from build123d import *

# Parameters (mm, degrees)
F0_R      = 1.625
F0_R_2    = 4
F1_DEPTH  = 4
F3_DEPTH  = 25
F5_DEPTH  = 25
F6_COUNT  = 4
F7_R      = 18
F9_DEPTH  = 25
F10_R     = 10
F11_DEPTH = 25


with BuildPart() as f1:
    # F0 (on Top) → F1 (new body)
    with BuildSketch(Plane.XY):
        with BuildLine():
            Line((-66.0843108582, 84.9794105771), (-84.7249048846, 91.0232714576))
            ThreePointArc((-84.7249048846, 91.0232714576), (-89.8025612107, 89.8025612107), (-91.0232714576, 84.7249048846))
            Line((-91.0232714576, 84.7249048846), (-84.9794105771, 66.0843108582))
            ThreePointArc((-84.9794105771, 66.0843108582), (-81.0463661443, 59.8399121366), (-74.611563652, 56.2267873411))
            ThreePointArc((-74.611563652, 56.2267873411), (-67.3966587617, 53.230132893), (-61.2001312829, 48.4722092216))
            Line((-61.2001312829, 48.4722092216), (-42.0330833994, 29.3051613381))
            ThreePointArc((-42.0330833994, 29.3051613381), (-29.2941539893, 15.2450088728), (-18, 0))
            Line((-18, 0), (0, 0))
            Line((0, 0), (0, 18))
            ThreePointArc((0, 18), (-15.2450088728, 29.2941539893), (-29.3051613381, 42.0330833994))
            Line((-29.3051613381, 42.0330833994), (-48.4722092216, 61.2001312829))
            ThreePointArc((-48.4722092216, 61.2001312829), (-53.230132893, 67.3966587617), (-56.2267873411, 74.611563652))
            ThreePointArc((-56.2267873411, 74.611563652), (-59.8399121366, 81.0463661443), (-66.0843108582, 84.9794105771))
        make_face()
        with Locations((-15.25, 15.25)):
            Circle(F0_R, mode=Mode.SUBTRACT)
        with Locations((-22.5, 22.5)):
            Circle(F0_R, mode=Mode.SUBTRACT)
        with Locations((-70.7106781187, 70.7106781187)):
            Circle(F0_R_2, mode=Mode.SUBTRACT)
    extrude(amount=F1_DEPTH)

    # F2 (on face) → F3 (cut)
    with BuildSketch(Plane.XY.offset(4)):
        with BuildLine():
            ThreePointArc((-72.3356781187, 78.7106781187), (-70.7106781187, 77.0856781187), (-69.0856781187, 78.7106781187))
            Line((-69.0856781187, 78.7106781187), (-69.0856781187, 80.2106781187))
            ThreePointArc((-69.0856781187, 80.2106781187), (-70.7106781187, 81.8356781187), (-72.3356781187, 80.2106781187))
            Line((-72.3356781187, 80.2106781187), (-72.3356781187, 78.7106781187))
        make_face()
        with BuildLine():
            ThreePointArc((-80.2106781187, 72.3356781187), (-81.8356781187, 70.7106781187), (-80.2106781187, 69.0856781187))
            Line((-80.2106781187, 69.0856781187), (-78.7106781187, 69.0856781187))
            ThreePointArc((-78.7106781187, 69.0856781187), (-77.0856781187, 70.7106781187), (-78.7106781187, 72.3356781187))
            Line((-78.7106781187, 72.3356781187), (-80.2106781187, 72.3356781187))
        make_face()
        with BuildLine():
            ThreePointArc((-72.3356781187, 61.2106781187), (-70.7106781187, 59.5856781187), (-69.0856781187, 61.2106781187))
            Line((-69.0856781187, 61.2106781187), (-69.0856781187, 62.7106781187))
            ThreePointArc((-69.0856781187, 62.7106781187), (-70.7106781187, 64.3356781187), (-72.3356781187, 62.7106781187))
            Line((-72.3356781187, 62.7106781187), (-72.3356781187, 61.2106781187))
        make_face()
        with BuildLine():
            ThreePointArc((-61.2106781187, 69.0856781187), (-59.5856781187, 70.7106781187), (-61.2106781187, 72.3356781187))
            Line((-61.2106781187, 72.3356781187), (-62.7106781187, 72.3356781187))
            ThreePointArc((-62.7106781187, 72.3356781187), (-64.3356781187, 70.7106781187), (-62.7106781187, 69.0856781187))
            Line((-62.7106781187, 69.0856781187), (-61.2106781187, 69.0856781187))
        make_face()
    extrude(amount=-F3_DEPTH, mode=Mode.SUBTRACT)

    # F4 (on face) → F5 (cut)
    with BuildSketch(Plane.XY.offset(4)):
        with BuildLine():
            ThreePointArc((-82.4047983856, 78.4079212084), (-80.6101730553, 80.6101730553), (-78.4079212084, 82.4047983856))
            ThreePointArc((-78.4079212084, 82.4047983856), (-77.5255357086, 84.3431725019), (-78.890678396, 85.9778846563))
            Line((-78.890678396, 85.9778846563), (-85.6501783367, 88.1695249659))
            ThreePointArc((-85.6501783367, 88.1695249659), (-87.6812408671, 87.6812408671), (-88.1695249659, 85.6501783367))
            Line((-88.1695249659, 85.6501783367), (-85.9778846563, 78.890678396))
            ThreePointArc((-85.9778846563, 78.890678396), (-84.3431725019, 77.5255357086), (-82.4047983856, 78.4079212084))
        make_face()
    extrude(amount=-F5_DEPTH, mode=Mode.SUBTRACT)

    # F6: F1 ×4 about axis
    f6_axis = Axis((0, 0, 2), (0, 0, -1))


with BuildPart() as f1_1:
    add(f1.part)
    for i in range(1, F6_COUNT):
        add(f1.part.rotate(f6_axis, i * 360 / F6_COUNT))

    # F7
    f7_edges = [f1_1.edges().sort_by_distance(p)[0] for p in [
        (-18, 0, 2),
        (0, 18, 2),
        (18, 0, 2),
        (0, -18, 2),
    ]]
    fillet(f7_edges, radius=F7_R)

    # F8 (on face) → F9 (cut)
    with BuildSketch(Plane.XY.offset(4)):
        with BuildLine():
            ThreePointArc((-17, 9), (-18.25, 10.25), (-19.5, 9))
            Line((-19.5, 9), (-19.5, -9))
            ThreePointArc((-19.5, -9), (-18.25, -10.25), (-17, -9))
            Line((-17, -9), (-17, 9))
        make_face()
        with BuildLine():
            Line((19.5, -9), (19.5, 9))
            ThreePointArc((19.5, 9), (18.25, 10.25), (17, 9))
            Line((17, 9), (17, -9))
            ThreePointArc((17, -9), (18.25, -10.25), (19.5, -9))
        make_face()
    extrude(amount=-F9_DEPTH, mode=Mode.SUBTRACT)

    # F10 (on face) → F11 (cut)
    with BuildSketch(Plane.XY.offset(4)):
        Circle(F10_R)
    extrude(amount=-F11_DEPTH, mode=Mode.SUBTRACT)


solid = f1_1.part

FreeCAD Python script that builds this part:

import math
import FreeCAD as App
import Part
import Sketcher
Q = App.Units.Quantity


def edges_at(feature, points):
    """Names of the edges that pass closest to the given points."""
    edges = feature.Shape.Edges
    near = lambda p: min(range(len(edges)), key=lambda i: edges[i].distToShape(Part.Vertex(*p))[0])
    return sorted({f"Edge{near(p) + 1}" for p in points})

doc = App.newDocument("Part")
body = doc.addObject("PartDesign::Body", "Body")

# Sketch on XY plane
sketch1 = body.newObject("Sketcher::SketchObject", "Sketch")
sketch1.AttachmentSupport = (doc.getObject("XY_Plane"), [""])
sketch1.MapMode = "FlatFace"
sketch1.addGeometry(Part.LineSegment(App.Vector(-66.1, 85, 0), App.Vector(-84.7, 91, 0)), False)
sketch1.addGeometry(Part.ArcOfCircle(Part.Circle(App.Vector(-86.3, 86.3, 0), App.Vector(0, 0, 1), 5), math.radians(72), math.radians(198)), False)
sketch1.addGeometry(Part.LineSegment(App.Vector(-91, 84.7, 0), App.Vector(-85, 66.1, 0)), False)
sketch1.addGeometry(Part.ArcOfCircle(Part.Circle(App.Vector(-70.7, 70.7, 0), App.Vector(0, 0, 1), 15), math.radians(-162), math.radians(-105)), False)
sketch1.addGeometry(Part.ArcOfCircle(Part.Circle(App.Vector(-82.4, 27.3, 0), App.Vector(0, 0, 1), 30), math.radians(45), math.radians(75)), False)
sketch1.addGeometry(Part.LineSegment(App.Vector(-61.2, 48.5, 0), App.Vector(-42, 29.3, 0)), False)
sketch1.addGeometry(Part.ArcOfCircle(Part.Circle(App.Vector(-178.3, -106.9, 0), App.Vector(0, 0, 1), 192.7), math.radians(33.71), math.radians(45)), False)
sketch1.addGeometry(Part.LineSegment(App.Vector(-18, 0, 0), App.Vector(0, 0, 0)), False)
sketch1.addGeometry(Part.LineSegment(App.Vector(0, 0, 0), App.Vector(0, 18, 0)), False)
sketch1.addGeometry(Part.ArcOfCircle(Part.Circle(App.Vector(106.9, 178.3, 0), App.Vector(0, 0, 1), 192.7), math.radians(-135), math.radians(-123.71)), False)
sketch1.addGeometry(Part.LineSegment(App.Vector(-29.3, 42, 0), App.Vector(-48.5, 61.2, 0)), False)
sketch1.addGeometry(Part.ArcOfCircle(Part.Circle(App.Vector(-27.3, 82.4, 0), App.Vector(0, 0, 1), 30), math.radians(-165), math.radians(-135)), False)
sketch1.addGeometry(Part.ArcOfCircle(Part.Circle(App.Vector(-70.7, 70.7, 0), App.Vector(0, 0, 1), 15), math.radians(15), math.radians(72)), False)
sketch1.addGeometry(Part.Circle(App.Vector(-15.2, 15.2, 0), App.Vector(0, 0, 1), 1.6), False)
sketch1.addGeometry(Part.Circle(App.Vector(-22.5, 22.5, 0), App.Vector(0, 0, 1), 1.6), False)
sketch1.addGeometry(Part.Circle(App.Vector(-70.7, 70.7, 0), App.Vector(0, 0, 1), 4), False)
sketch1.addConstraint(Sketcher.Constraint("Tangent", 0, 2, 1, 1))
sketch1.addConstraint(Sketcher.Constraint("Tangent", 1, 2, 2, 1))
sketch1.addConstraint(Sketcher.Constraint("Tangent", 2, 2, 3, 1))
sketch1.addConstraint(Sketcher.Constraint("Tangent", 3, 2, 4, 2))
sketch1.addConstraint(Sketcher.Constraint("Tangent", 4, 1, 5, 1))
sketch1.addConstraint(Sketcher.Constraint("Tangent", 5, 2, 6, 2))
sketch1.addConstraint(Sketcher.Constraint("Coincident", 6, 1, 7, 1))
sketch1.addConstraint(Sketcher.Constraint("Coincident", 7, 2, 8, 1))
sketch1.addConstraint(Sketcher.Constraint("Coincident", 8, 2, 9, 2))
sketch1.addConstraint(Sketcher.Constraint("Tangent", 9, 1, 10, 1))
sketch1.addConstraint(Sketcher.Constraint("Tangent", 10, 2, 11, 2))
sketch1.addConstraint(Sketcher.Constraint("Tangent", 11, 1, 12, 1))
sketch1.addConstraint(Sketcher.Constraint("Tangent", 12, 2, 0, 1))
sketch1.addConstraint(Sketcher.Constraint("Horizontal", 7))
sketch1.addConstraint(Sketcher.Constraint("Vertical", 8))
sketch1.addConstraint(Sketcher.Constraint("Coincident", 7, 2, -1, 1))
sketch1.addConstraint(Sketcher.Constraint("Coincident", 12, 3, 3, 3))
sketch1.addConstraint(Sketcher.Constraint("Coincident", 15, 3, 3, 3))
sketch1.addConstraint(Sketcher.Constraint("Equal", 6, 9))
sketch1.addConstraint(Sketcher.Constraint("Equal", 4, 11))
sketch1.addConstraint(Sketcher.Constraint("Equal", 3, 12))
sketch1.addConstraint(Sketcher.Constraint("Equal", 13, 14))
sketch1.addConstraint(Sketcher.Constraint("Parallel", 5, 10))
sketch1.addConstraint(Sketcher.Constraint("Equal", 7, 8))
sketch1.addConstraint(Sketcher.Constraint("Equal", 5, 10))
sketch1.addConstraint(Sketcher.Constraint("Diameter", 15, 8.0))
sketch1.addConstraint(Sketcher.Constraint("Radius", 1, 5.0))
sketch1.addConstraint(Sketcher.Constraint("Radius", 3, 15.0))
sketch1.addConstraint(Sketcher.Constraint("Radius", 4, 30.0))
sketch1.addConstraint(Sketcher.Constraint("Diameter", 13, 3.25))
sketch1.addConstraint(Sketcher.Constraint("DistanceX", 7, 1, 7, 2, 18.0))
sketch1.addConstraint(Sketcher.Constraint("Angle", 5, Q("-45 deg")))
sketch1.addConstraint(Sketcher.Constraint("DistanceX", 14, 3, -1, 1, 22.5))
sketch1.addConstraint(Sketcher.Constraint("DistanceY", -1, 1, 14, 3, 22.5))
sketch1.addConstraint(Sketcher.Constraint("DistanceX", 13, 3, -1, 1, 15.25))
sketch1.addConstraint(Sketcher.Constraint("DistanceY", -1, 1, 13, 3, 15.25))
sketch1.addConstraint(Sketcher.Constraint("Radius", 6, 192.651772))
sketch1.addConstraint(Sketcher.Constraint("Distance", 5, 27.106299))
sketch1.addConstraint(Sketcher.Constraint("DistanceX", 0, 2, 11, 3, 57.465899))
sketch1.addConstraint(Sketcher.Constraint("DistanceY", 4, 1, 2, 2, 17.612102))
sketch1.addConstraint(Sketcher.Constraint("DistanceX", 3, 3, -1, 1, 70.710678))
sketch1.addConstraint(Sketcher.Constraint("DistanceY", -1, 1, 3, 3, 70.710678))
pad1 = body.newObject("PartDesign::Pad", "Pad")
pad1.Profile = sketch1
pad1.Length = 4

# Sketch on XY plane
sketch2 = body.newObject("Sketcher::SketchObject", "Sketch001")
sketch2.AttachmentSupport = (doc.getObject("XY_Plane"), [""])
sketch2.MapMode = "FlatFace"
sketch2.AttachmentOffset = App.Placement(App.Vector(0, 0, 4), App.Rotation())
sketch2.addGeometry(Part.ArcOfCircle(Part.Circle(App.Vector(-70.7, 78.7, 0), App.Vector(0, 0, 1), 1.6), math.radians(180), math.radians(360)), False)
sketch2.addGeometry(Part.LineSegment(App.Vector(-69.1, 78.7, 0), App.Vector(-69.1, 80.2, 0)), False)
sketch2.addGeometry(Part.ArcOfCircle(Part.Circle(App.Vector(-70.7, 80.2, 0), App.Vector(0, 0, 1), 1.6), math.radians(0), math.radians(180)), False)
sketch2.addGeometry(Part.LineSegment(App.Vector(-72.3, 80.2, 0), App.Vector(-72.3, 78.7, 0)), False)
sketch2.addGeometry(Part.ArcOfCircle(Part.Circle(App.Vector(-80.2, 70.7, 0), App.Vector(0, 0, 1), 1.6), math.radians(90), math.radians(270)), False)
sketch2.addGeometry(Part.LineSegment(App.Vector(-80.2, 69.1, 0), App.Vector(-78.7, 69.1, 0)), False)
sketch2.addGeometry(Part.ArcOfCircle(Part.Circle(App.Vector(-78.7, 70.7, 0), App.Vector(0, 0, 1), 1.6), math.radians(-90), math.radians(90)), False)
sketch2.addGeometry(Part.LineSegment(App.Vector(-78.7, 72.3, 0), App.Vector(-80.2, 72.3, 0)), False)
sketch2.addGeometry(Part.ArcOfCircle(Part.Circle(App.Vector(-70.7, 61.2, 0), App.Vector(0, 0, 1), 1.6), math.radians(180), math.radians(360)), False)
sketch2.addGeometry(Part.LineSegment(App.Vector(-69.1, 61.2, 0), App.Vector(-69.1, 62.7, 0)), False)
sketch2.addGeometry(Part.ArcOfCircle(Part.Circle(App.Vector(-70.7, 62.7, 0), App.Vector(0, 0, 1), 1.6), math.radians(0), math.radians(180)), False)
sketch2.addGeometry(Part.LineSegment(App.Vector(-72.3, 62.7, 0), App.Vector(-72.3, 61.2, 0)), False)
sketch2.addGeometry(Part.ArcOfCircle(Part.Circle(App.Vector(-61.2, 70.7, 0), App.Vector(0, 0, 1), 1.6), math.radians(-90), math.radians(90)), False)
sketch2.addGeometry(Part.LineSegment(App.Vector(-61.2, 72.3, 0), App.Vector(-62.7, 72.3, 0)), False)
sketch2.addGeometry(Part.ArcOfCircle(Part.Circle(App.Vector(-62.7, 70.7, 0), App.Vector(0, 0, 1), 1.6), math.radians(90), math.radians(270)), False)
sketch2.addGeometry(Part.LineSegment(App.Vector(-62.7, 69.1, 0), App.Vector(-61.2, 69.1, 0)), False)
sketch2.addConstraint(Sketcher.Constraint("Tangent", 0, 2, 1, 1))
sketch2.addConstraint(Sketcher.Constraint("Tangent", 1, 2, 2, 1))
sketch2.addConstraint(Sketcher.Constraint("Tangent", 2, 2, 3, 1))
sketch2.addConstraint(Sketcher.Constraint("Tangent", 3, 2, 0, 1))
sketch2.addConstraint(Sketcher.Constraint("Tangent", 4, 2, 5, 1))
sketch2.addConstraint(Sketcher.Constraint("Tangent", 5, 2, 6, 1))
sketch2.addConstraint(Sketcher.Constraint("Tangent", 6, 2, 7, 1))
sketch2.addConstraint(Sketcher.Constraint("Tangent", 7, 2, 4, 1))
sketch2.addConstraint(Sketcher.Constraint("Tangent", 8, 2, 9, 1))
sketch2.addConstraint(Sketcher.Constraint("Tangent", 9, 2, 10, 1))
sketch2.addConstraint(Sketcher.Constraint("Tangent", 10, 2, 11, 1))
sketch2.addConstraint(Sketcher.Constraint("Tangent", 11, 2, 8, 1))
sketch2.addConstraint(Sketcher.Constraint("Tangent", 12, 2, 13, 1))
sketch2.addConstraint(Sketcher.Constraint("Tangent", 13, 2, 14, 1))
sketch2.addConstraint(Sketcher.Constraint("Tangent", 14, 2, 15, 1))
sketch2.addConstraint(Sketcher.Constraint("Tangent", 15, 2, 12, 1))
sketch2.addConstraint(Sketcher.Constraint("Vertical", 1))
sketch2.addConstraint(Sketcher.Constraint("Vertical", 3))
sketch2.addConstraint(Sketcher.Constraint("Horizontal", 5))
sketch2.addConstraint(Sketcher.Constraint("Horizontal", 7))
sketch2.addConstraint(Sketcher.Constraint("Vertical", 9))
sketch2.addConstraint(Sketcher.Constraint("Vertical", 11))
sketch2.addConstraint(Sketcher.Constraint("Horizontal", 13))
sketch2.addConstraint(Sketcher.Constraint("Horizontal", 15))
sketch2.addConstraint(Sketcher.Constraint("Equal", 2, 4))
sketch2.addConstraint(Sketcher.Constraint("Equal", 6, 8))
sketch2.addConstraint(Sketcher.Constraint("Equal", 10, 12))
sketch2.addConstraint(Sketcher.Constraint("Horizontal", 6, 3, 12, 3))
sketch2.addConstraint(Sketcher.Constraint("Vertical", 2, 3, 8, 3))
sketch2.addConstraint(Sketcher.Constraint("Equal", 7, 13))
sketch2.addConstraint(Sketcher.Constraint("Equal", 15, 1))
sketch2.addConstraint(Sketcher.Constraint("Equal", 3, 9))
sketch2.addConstraint(Sketcher.Constraint("DistanceX", 5, 1, 5, 2, 1.5))
sketch2.addConstraint(Sketcher.Constraint("Radius", 0, 1.625))
sketch2.addConstraint(Sketcher.Constraint("DistanceY", 4, 3, 0, 3, 8.0))
sketch2.addConstraint(Sketcher.Constraint("DistanceX", 6, 3, 0, 3, 8.0))
sketch2.addConstraint(Sketcher.Constraint("DistanceY", 8, 3, 2, 3, 19.0))
sketch2.addConstraint(Sketcher.Constraint("DistanceX", 10, 3, 14, 3, 8.0))
sketch2.addConstraint(Sketcher.Constraint("DistanceX", 0, 3, -1, 1, 70.710678))
sketch2.addConstraint(Sketcher.Constraint("DistanceY", -1, 1, 0, 3, 78.710678))
pocket1 = body.newObject("PartDesign::Pocket", "Pocket")
pocket1.Profile = sketch2
pocket1.Length = 25

# Sketch on XY plane
sketch3 = body.newObject("Sketcher::SketchObject", "Sketch002")
sketch3.AttachmentSupport = (doc.getObject("XY_Plane"), [""])
sketch3.MapMode = "FlatFace"
sketch3.AttachmentOffset = App.Placement(App.Vector(0, 0, 4), App.Rotation())
sketch3.addGeometry(Part.ArcOfCircle(Part.Circle(App.Vector(-70.7, 70.7, 0), App.Vector(0, 0, 1), 14), math.radians(123), math.radians(147)), False)
sketch3.addGeometry(Part.ArcOfCircle(Part.Circle(App.Vector(-79.5, 84.1, 0), App.Vector(0, 0, 1), 2), math.radians(-57), math.radians(72)), False)
sketch3.addGeometry(Part.LineSegment(App.Vector(-78.9, 86, 0), App.Vector(-85.7, 88.2, 0)), False)
sketch3.addGeometry(Part.ArcOfCircle(Part.Circle(App.Vector(-86.3, 86.3, 0), App.Vector(0, 0, 1), 2), math.radians(72), math.radians(198)), False)
sketch3.addGeometry(Part.LineSegment(App.Vector(-88.2, 85.7, 0), App.Vector(-86, 78.9, 0)), False)
sketch3.addGeometry(Part.ArcOfCircle(Part.Circle(App.Vector(-84.1, 79.5, 0), App.Vector(0, 0, 1), 2), math.radians(-162), math.radians(-33)), False)
sketch3.addConstraint(Sketcher.Constraint("Tangent", 0, 1, 1, 1))
sketch3.addConstraint(Sketcher.Constraint("Tangent", 1, 2, 2, 1))
sketch3.addConstraint(Sketcher.Constraint("Tangent", 2, 2, 3, 1))
sketch3.addConstraint(Sketcher.Constraint("Tangent", 3, 2, 4, 1))
sketch3.addConstraint(Sketcher.Constraint("Tangent", 4, 2, 5, 1))
sketch3.addConstraint(Sketcher.Constraint("Tangent", 5, 2, 0, 2))
sketch3.addConstraint(Sketcher.Constraint("Equal", 1, 3))
sketch3.addConstraint(Sketcher.Constraint("Equal", 3, 5))
sketch3.addConstraint(Sketcher.Constraint("Equal", 2, 4))
sketch3.addConstraint(Sketcher.Constraint("Radius", 0, 14.0))
sketch3.addConstraint(Sketcher.Constraint("Radius", 1, 2.0))
sketch3.addConstraint(Sketcher.Constraint("DistanceX", 1, 2, 0, 3, 8.18))
sketch3.addConstraint(Sketcher.Constraint("DistanceY", -1, 1, 0, 1, 82.404798))
sketch3.addConstraint(Sketcher.Constraint("DistanceX", 5, 2, -1, 1, 82.404798))
sketch3.addConstraint(Sketcher.Constraint("DistanceX", 3, 3, 1, 3, 6.7595))
sketch3.addConstraint(Sketcher.Constraint("DistanceY", 5, 3, 3, 3, 6.7595))
pocket2 = body.newObject("PartDesign::Pocket", "Pocket001")
pocket2.Profile = sketch3
pocket2.Length = 25
body2 = doc.addObject("PartDesign::Body", "Body001")
doc.recompute()

body2.BaseFeature = body
doc.recompute()

body3 = doc.addObject("PartDesign::Body", "Body002")
body3.BaseFeature = body
body3.Placement = App.Placement(App.Vector(0, 0, 0), App.Rotation(App.Vector(0, 0, -1), 90))
boolean = body2.newObject("PartDesign::Boolean", "Boolean")
boolean.Type = "Fuse"
boolean.addObjects([body3])
doc.recompute()

body4 = doc.addObject("PartDesign::Body", "Body003")
body4.BaseFeature = body
body4.Placement = App.Placement(App.Vector(0, 0, 0), App.Rotation(App.Vector(0, 0, -1), 180))
boolean2 = body2.newObject("PartDesign::Boolean", "Boolean001")
boolean2.Type = "Fuse"
boolean2.addObjects([body4])
doc.recompute()

body.Placement = App.Placement(App.Vector(0, 0, 0), App.Rotation(App.Vector(0, 0, -1), 270))
boolean3 = body2.newObject("PartDesign::Boolean", "Boolean002")
boolean3.Type = "Fuse"
boolean3.addObjects([body])
doc.recompute()

fillet = body2.newObject("PartDesign::Fillet", "Fillet")
fillet.Base = (boolean3, edges_at(boolean3, [
    (-18, 0, 2),
    (0, 18, 2),
    (18, 0, 2),
    (0, -18, 2),
]))
fillet.Radius = 18

# Sketch on XY plane
sketch4 = body2.newObject("Sketcher::SketchObject", "Sketch003")
sketch4.AttachmentSupport = (doc.getObject("XY_Plane001"), [""])
sketch4.MapMode = "FlatFace"
sketch4.AttachmentOffset = App.Placement(App.Vector(0, 0, 4), App.Rotation())
sketch4.addGeometry(Part.ArcOfCircle(Part.Circle(App.Vector(-18.2, 9, 0), App.Vector(0, 0, 1), 1.2), math.radians(0), math.radians(180)), False)
sketch4.addGeometry(Part.LineSegment(App.Vector(-19.5, 9, 0), App.Vector(-19.5, -9, 0)), False)
sketch4.addGeometry(Part.ArcOfCircle(Part.Circle(App.Vector(-18.2, -9, 0), App.Vector(0, 0, 1), 1.2), math.radians(180), math.radians(360)), False)
sketch4.addGeometry(Part.LineSegment(App.Vector(-17, -9, 0), App.Vector(-17, 9, 0)), False)
sketch4.addGeometry(Part.LineSegment(App.Vector(19.5, -9, 0), App.Vector(19.5, 9, 0)), False)
sketch4.addGeometry(Part.ArcOfCircle(Part.Circle(App.Vector(18.2, 9, 0), App.Vector(0, 0, 1), 1.2), math.radians(0), math.radians(180)), False)
sketch4.addGeometry(Part.LineSegment(App.Vector(17, 9, 0), App.Vector(17, -9, 0)), False)
sketch4.addGeometry(Part.ArcOfCircle(Part.Circle(App.Vector(18.2, -9, 0), App.Vector(0, 0, 1), 1.2), math.radians(180), math.radians(360)), False)
sketch4.addConstraint(Sketcher.Constraint("Tangent", 0, 2, 1, 1))
sketch4.addConstraint(Sketcher.Constraint("Tangent", 1, 2, 2, 1))
sketch4.addConstraint(Sketcher.Constraint("Tangent", 2, 2, 3, 1))
sketch4.addConstraint(Sketcher.Constraint("Tangent", 3, 2, 0, 1))
sketch4.addConstraint(Sketcher.Constraint("Tangent", 4, 2, 5, 1))
sketch4.addConstraint(Sketcher.Constraint("Tangent", 5, 2, 6, 1))
sketch4.addConstraint(Sketcher.Constraint("Tangent", 6, 2, 7, 1))
sketch4.addConstraint(Sketcher.Constraint("Tangent", 7, 2, 4, 1))
sketch4.addConstraint(Sketcher.Constraint("Vertical", 1))
sketch4.addConstraint(Sketcher.Constraint("Vertical", 3))
sketch4.addConstraint(Sketcher.Constraint("Vertical", 4))
sketch4.addConstraint(Sketcher.Constraint("Vertical", 6))
sketch4.addConstraint(Sketcher.Constraint("Equal", 2, 5))
sketch4.addConstraint(Sketcher.Constraint("Symmetric", 2, 3, 5, 3, -1, 1))
sketch4.addConstraint(Sketcher.Constraint("Horizontal", 0, 3, 5, 3))
sketch4.addConstraint(Sketcher.Constraint("Horizontal", 2, 3, 7, 3))
sketch4.addConstraint(Sketcher.Constraint("DistanceY", 1, 2, 1, 1, 18.0))
sketch4.addConstraint(Sketcher.Constraint("Radius", 0, 1.25))
sketch4.addConstraint(Sketcher.Constraint("DistanceX", 2, 2, -1, 1, 17.0))
pocket3 = body2.newObject("PartDesign::Pocket", "Pocket002")
pocket3.Profile = sketch4
pocket3.Length = 25

# Sketch on XY plane
sketch5 = body2.newObject("Sketcher::SketchObject", "Sketch004")
sketch5.AttachmentSupport = (doc.getObject("XY_Plane001"), [""])
sketch5.MapMode = "FlatFace"
sketch5.AttachmentOffset = App.Placement(App.Vector(0, 0, 4), App.Rotation())
sketch5.addGeometry(Part.Circle(App.Vector(0, 0, 0), App.Vector(0, 0, 1), 10), False)
sketch5.addConstraint(Sketcher.Constraint("Coincident", 0, 3, -1, 1))
sketch5.addConstraint(Sketcher.Constraint("Diameter", 0, 20.0))
pocket4 = body2.newObject("PartDesign::Pocket", "Pocket003")
pocket4.Profile = sketch5
pocket4.Length = 25

doc.recompute()
